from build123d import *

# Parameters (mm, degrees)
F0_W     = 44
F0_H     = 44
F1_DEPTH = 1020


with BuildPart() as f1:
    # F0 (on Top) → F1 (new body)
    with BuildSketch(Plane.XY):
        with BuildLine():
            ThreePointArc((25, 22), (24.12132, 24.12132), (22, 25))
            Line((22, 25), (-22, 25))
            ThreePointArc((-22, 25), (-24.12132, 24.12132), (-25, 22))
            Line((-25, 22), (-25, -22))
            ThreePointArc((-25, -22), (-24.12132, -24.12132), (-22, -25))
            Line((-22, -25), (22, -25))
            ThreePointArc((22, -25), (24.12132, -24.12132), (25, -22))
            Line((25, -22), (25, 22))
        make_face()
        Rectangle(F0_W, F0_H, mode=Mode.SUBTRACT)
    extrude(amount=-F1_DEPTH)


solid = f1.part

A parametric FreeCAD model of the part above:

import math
import FreeCAD as App
import Part
import Sketcher
from FreeCAD import Vector
Q = App.Units.Quantity


def add_polygon(sketch, points):
    """Adds a closed chain of lines whose ends are joined by coincident constraints."""
    first, n = sketch.GeometryCount, len(points)
    for a, b in zip(points, points[1:] + points[:1]):
        sketch.addGeometry(Part.LineSegment(App.Vector(*a, 0), App.Vector(*b, 0)), False)
    for i in range(n):
        sketch.addConstraint(Sketcher.Constraint("Coincident", first + i, 2, first + (i + 1) % n, 1))

doc = App.newDocument("Part")
body = doc.addObject("PartDesign::Body", "Body")

sketch1 = body.newObject("Sketcher::SketchObject", "Sketch")
sketch1.AttachmentSupport = (doc.getObject("XY_Plane"), [""])
sketch1.MapMode = "FlatFace"
sketch1.addGeometry(Part.ArcOfCircle(Part.Circle(Vector(22, 22, 0), Vector(0, 0, 1), 3), math.radians(0), math.radians(90)), False)
sketch1.addGeometry(Part.LineSegment(Vector(22, 25, 0), Vector(-22, 25, 0)), False)
sketch1.addGeometry(Part.ArcOfCircle(Part.Circle(Vector(-22, 22, 0), Vector(0, 0, 1), 3), math.radians(90), math.radians(180)), False)
sketch1.addGeometry(Part.LineSegment(Vector(-25, 22, 0), Vector(-25, -22, 0)), False)
sketch1.addGeometry(Part.ArcOfCircle(Part.Circle(Vector(-22, -22, 0), Vector(0, 0, 1), 3), math.radians(-180), math.radians(-90)), False)
sketch1.addGeometry(Part.LineSegment(Vector(-22, -25, 0), Vector(22, -25, 0)), False)
sketch1.addGeometry(Part.ArcOfCircle(Part.Circle(Vector(22, -22, 0), Vector(0, 0, 1), 3), math.radians(-90), math.radians(0)), False)
sketch1.addGeometry(Part.LineSegment(Vector(25, -22, 0), Vector(25, 22, 0)), False)
add_polygon(sketch1, [(22, -22), (-22, -22), (-22, 22), (22, 22)])
sketch1.addConstraint(Sketcher.Constraint("Tangent", 0, 2, 1, 1))
sketch1.addConstraint(Sketcher.Constraint("Tangent", 1, 2, 2, 1))
sketch1.addConstraint(Sketcher.Constraint("Tangent", 2, 2, 3, 1))
sketch1.addConstraint(Sketcher.Constraint("Tangent", 3, 2, 4, 1))
sketch1.addConstraint(Sketcher.Constraint("Tangent", 4, 2, 5, 1))
sketch1.addConstraint(Sketcher.Constraint("Tangent", 5, 2, 6, 1))
sketch1.addConstraint(Sketcher.Constraint("Tangent", 6, 2, 7, 1))
sketch1.addConstraint(Sketcher.Constraint("Tangent", 7, 2, 0, 1))
sketch1.addConstraint(Sketcher.Constraint("Horizontal", 1))
sketch1.addConstraint(Sketcher.Constraint("Vertical", 3))
sketch1.addConstraint(Sketcher.Constraint("Horizontal", 5))
sketch1.addConstraint(Sketcher.Constraint("Vertical", 7))
sketch1.addConstraint(Sketcher.Constraint("Horizontal", 8))
sketch1.addConstraint(Sketcher.Constraint("Vertical", 9))
sketch1.addConstraint(Sketcher.Constraint("Horizontal", 10))
sketch1.addConstraint(Sketcher.Constraint("Vertical", 11))
sketch1.addConstraint(Sketcher.Constraint("Coincident", 8, 2, 4, 3))
sketch1.addConstraint(Sketcher.Constraint("Coincident", 9, 2, 2, 3))
sketch1.addConstraint(Sketcher.Constraint("Coincident", 10, 2, 0, 3))
sketch1.addConstraint(Sketcher.Constraint("Equal", 4, 6))
sketch1.addConstraint(Sketcher.Constraint("Symmetric", 0, 3, 4, 3, -1, 1))
sketch1.addConstraint(Sketcher.Constraint("Equal", 10, 3))
sketch1.addConstraint(Sketcher.Constraint("Radius", 0, Q("3.000001 mm")))
sketch1.addConstraint(Sketcher.Constraint("DistanceX", 1, 2, 1, 1, Q("44 mm")))
pad1 = body.newObject("PartDesign::Pad", "Pad")
pad1.Profile = sketch1
pad1.Length = 1020
pad1.Reversed = True

doc.recompute()
